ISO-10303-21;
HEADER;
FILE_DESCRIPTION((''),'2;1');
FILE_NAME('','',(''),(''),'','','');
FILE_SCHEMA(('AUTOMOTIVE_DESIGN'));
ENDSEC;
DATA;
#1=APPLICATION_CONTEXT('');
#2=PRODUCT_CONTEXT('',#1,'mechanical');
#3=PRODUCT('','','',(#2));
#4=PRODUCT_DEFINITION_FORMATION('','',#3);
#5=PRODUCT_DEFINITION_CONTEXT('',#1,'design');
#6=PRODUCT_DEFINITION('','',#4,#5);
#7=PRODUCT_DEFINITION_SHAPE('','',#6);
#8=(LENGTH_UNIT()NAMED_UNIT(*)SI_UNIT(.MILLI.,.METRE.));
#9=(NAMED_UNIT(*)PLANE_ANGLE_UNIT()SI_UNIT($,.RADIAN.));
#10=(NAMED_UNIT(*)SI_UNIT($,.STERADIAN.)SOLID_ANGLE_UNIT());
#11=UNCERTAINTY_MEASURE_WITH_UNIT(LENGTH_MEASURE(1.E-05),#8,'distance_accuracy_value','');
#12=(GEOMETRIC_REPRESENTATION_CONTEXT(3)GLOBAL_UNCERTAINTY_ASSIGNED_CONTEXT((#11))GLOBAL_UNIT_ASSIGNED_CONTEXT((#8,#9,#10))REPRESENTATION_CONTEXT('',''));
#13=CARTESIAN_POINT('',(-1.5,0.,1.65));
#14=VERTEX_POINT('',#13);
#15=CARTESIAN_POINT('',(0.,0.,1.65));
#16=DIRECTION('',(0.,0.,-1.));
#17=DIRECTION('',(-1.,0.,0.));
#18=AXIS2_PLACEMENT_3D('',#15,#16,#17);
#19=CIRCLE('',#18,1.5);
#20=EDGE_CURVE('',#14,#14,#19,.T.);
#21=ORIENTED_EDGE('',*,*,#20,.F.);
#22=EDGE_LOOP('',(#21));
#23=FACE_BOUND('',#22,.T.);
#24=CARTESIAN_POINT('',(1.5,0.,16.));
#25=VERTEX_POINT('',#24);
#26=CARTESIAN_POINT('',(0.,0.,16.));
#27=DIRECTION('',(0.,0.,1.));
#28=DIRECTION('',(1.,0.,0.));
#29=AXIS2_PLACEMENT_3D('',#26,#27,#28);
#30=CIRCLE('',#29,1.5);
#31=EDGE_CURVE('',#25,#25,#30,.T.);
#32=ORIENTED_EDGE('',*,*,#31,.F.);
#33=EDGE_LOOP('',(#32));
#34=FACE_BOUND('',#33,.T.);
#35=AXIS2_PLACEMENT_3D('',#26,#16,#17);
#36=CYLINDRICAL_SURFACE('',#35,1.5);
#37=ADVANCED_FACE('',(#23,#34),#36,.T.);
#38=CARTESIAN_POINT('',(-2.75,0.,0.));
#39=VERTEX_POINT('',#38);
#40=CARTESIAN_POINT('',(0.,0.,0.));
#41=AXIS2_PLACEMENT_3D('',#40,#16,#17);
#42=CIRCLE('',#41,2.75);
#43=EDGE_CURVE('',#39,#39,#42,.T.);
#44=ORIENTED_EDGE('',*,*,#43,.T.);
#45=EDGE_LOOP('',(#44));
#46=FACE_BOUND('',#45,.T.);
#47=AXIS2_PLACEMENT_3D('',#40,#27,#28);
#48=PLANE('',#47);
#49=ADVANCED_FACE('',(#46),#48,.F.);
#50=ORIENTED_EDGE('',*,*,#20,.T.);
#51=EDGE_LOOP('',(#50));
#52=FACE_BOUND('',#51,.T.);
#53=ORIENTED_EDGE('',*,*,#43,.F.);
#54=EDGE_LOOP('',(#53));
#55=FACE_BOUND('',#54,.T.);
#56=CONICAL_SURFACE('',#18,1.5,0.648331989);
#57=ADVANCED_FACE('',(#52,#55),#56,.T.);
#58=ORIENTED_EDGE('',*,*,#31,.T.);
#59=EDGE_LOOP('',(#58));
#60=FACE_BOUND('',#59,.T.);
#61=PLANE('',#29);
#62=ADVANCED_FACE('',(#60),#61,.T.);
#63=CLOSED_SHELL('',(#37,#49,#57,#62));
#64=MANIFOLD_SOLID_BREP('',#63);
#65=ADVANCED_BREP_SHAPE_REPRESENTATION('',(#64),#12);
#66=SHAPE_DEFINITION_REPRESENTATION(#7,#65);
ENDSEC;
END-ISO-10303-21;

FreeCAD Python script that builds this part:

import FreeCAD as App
import Part
import Sketcher
from FreeCAD import Vector

doc = App.newDocument("Part")
body = doc.addObject("PartDesign::Body", "Body")

sketch1 = body.newObject("Sketcher::SketchObject", "Sketch")
sketch1.AttachmentSupport = (doc.getObject("XY_Plane"), [""])
sketch1.MapMode = "FlatFace"
sketch1.addGeometry(Part.Circle(Vector(0, 0, 0), Vector(0, 0, 1), 1.5), False)
sketch1.addConstraint([
    Sketcher.Constraint("Coincident", 0, 3, -1, 1),
    Sketcher.Constraint("Diameter", 0, 3.0),
])
pad1 = body.newObject("PartDesign::Pad", "Pad")
pad1.Profile = sketch1
pad1.Length = 16

sketch2 = body.newObject("Sketcher::SketchObject", "Sketch001")
sketch2.AttachmentSupport = (doc.getObject("XZ_Plane"), [""])
sketch2.MapMode = "FlatFace"
sketch2.addGeometry([
    Part.LineSegment(Vector(2.8, 0, 0), Vector(1.5, 0, 0)),
    Part.LineSegment(Vector(1.5, 0, 0), Vector(1.5, 1.6, 0)),
    Part.LineSegment(Vector(1.5, 1.6, 0), Vector(2.8, 0, 0)),
], False)
sketch2.addConstraint([
    Sketcher.Constraint("Coincident", 0, 2, 1, 1),
    Sketcher.Constraint("Coincident", 1, 2, 2, 1),
    Sketcher.Constraint("Coincident", 2, 2, 0, 1),
    Sketcher.Constraint("Horizontal", 0),
    Sketcher.Constraint("Vertical", 1),
    Sketcher.Constraint("PointOnObject", 0, 2, -1),
    Sketcher.Constraint("DistanceX", 0, 2, 0, 1, 1.25),
    Sketcher.Constraint("DistanceY", 1, 1, 1, 2, 1.65),
    Sketcher.Constraint("DistanceX", -1, 1, 0, 2, 1.5),
])
revolution = body.newObject("PartDesign::Revolution", "Revolution")
revolution.Profile = sketch2
revolution.ReferenceAxis = (sketch2, ["V_Axis"])
revolution.Angle = 360

doc.recompute()
